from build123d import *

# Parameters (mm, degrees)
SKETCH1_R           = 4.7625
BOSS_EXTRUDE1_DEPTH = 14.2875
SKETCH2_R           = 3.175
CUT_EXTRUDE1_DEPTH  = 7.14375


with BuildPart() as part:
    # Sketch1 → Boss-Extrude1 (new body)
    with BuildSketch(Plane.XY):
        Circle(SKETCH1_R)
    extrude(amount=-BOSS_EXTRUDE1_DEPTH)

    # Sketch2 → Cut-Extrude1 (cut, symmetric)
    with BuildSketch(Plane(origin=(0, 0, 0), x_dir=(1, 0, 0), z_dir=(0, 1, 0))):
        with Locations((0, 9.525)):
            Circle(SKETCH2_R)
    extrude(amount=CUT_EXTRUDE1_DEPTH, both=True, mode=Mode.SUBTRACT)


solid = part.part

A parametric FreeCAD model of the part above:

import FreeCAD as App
import Part
import Sketcher
from FreeCAD import Vector
Q = App.Units.Quantity

doc = App.newDocument("Part")
params = doc.addObject("Spreadsheet::Sheet", "Params")
for row, (alias, value) in enumerate([
    ("sketch1_diameter", "0.375 in"),
    ("pad1_length", "0.5625 in"),
    ("sketch2_diameter", "0.25 in"),
    ("pocket1_length", "0.5625 in"),
], start=1):
    params.set(f"A{row}", alias)
    params.set(f"B{row}", "=" + value)
    params.setAlias(f"B{row}", alias)

body = doc.addObject("PartDesign::Body", "Body")

# Sketch on XY plane
sketch1 = body.newObject("Sketcher::SketchObject", "Sketch")
sketch1.AttachmentSupport = (doc.getObject("XY_Plane"), [""])
sketch1.MapMode = "FlatFace"
sketch1.addGeometry(Part.Circle(Vector(0, 0, 0), Vector(0, 0, 1), 4.8), False)
sketch1.addConstraint([
    Sketcher.Constraint("Coincident", 0, 3, -1, 1),
    Sketcher.Constraint("Diameter", 0, Q("0.375 in")),
])
sketch1.setExpression("Constraints[1]", "Params.sketch1_diameter")
pad1 = body.newObject("PartDesign::Pad", "Pad")
pad1.Profile = sketch1
pad1.setExpression("Length", "Params.pad1_length")
pad1.Reversed = True

# Sketch on XZ plane
sketch2 = body.newObject("Sketcher::SketchObject", "Sketch001")
sketch2.AttachmentSupport = (doc.getObject("XZ_Plane"), [""])
sketch2.MapMode = "FlatFace"
sketch2.addGeometry(Part.Circle(Vector(0, -9.5, 0), Vector(0, 0, 1), 3.2), False)
sketch2.addConstraint([
    Sketcher.Constraint("PointOnObject", 0, 3, -2),
    Sketcher.Constraint("Diameter", 0, Q("0.25 in")),
    Sketcher.Constraint("DistanceY", 0, 3, -1, 1, Q("0.375 in")),
])
sketch2.setExpression("Constraints[1]", "Params.sketch2_diameter")
pocket1 = body.newObject("PartDesign::Pocket", "Pocket")
pocket1.Profile = sketch2
pocket1.setExpression("Length", "Params.pocket1_length")
pocket1.Midplane = True

doc.recompute()
